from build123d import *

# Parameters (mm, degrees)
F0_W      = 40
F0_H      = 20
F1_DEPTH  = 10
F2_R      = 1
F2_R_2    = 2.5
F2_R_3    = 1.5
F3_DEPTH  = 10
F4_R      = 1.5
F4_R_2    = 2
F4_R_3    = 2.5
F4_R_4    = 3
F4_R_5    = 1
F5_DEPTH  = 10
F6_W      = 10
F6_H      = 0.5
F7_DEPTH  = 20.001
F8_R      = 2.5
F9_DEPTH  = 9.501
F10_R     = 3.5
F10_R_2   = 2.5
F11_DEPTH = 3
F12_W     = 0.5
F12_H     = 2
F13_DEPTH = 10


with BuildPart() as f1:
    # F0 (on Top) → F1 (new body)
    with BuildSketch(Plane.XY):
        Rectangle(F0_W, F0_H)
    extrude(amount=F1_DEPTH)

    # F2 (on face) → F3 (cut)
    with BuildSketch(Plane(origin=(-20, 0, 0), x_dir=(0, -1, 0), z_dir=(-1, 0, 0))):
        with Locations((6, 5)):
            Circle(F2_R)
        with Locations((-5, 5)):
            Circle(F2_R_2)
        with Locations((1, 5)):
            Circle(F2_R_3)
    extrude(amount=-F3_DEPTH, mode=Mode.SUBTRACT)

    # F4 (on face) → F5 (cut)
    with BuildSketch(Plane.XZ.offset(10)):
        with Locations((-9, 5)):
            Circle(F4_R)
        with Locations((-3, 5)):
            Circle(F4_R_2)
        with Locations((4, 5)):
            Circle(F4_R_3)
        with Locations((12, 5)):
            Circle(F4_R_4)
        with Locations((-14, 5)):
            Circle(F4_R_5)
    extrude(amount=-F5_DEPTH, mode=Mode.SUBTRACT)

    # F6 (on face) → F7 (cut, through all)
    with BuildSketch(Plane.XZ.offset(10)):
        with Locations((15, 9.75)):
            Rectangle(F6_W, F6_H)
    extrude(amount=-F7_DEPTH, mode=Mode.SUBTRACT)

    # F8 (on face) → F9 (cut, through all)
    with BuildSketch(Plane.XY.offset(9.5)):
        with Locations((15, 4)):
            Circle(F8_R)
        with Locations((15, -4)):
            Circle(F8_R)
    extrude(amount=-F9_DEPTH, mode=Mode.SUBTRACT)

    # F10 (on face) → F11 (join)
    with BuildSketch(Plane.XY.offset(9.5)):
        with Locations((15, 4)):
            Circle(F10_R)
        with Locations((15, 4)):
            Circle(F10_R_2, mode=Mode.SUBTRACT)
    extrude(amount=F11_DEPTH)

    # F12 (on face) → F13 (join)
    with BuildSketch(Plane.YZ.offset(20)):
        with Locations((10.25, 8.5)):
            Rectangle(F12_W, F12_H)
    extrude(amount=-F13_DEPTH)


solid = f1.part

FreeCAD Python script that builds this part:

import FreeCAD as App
import Part
import Sketcher
Q = App.Units.Quantity


def add_polygon(sketch, points):
    """Adds a closed chain of lines whose ends are joined by coincident constraints."""
    first, n = sketch.GeometryCount, len(points)
    for a, b in zip(points, points[1:] + points[:1]):
        sketch.addGeometry(Part.LineSegment(App.Vector(*a, 0), App.Vector(*b, 0)), False)
    for i in range(n):
        sketch.addConstraint(Sketcher.Constraint("Coincident", first + i, 2, first + (i + 1) % n, 1))

doc = App.newDocument("Part")
body = doc.addObject("PartDesign::Body", "Body")

sketch1 = doc.addObject("Sketcher::SketchObject", "Sketch")
body.addObject(sketch1)
sketch1.AttachmentSupport = (doc.XY_Plane, [""])
sketch1.MapMode = "FlatFace"
add_polygon(sketch1, [(-20, 10), (-20, -10), (20, -10), (20, 10)])
sketch1.addConstraint([
    Sketcher.Constraint("Vertical", 0),
    Sketcher.Constraint("Horizontal", 1),
    Sketcher.Constraint("Vertical", 2),
    Sketcher.Constraint("Horizontal", 3),
    Sketcher.Constraint("Symmetric", 0, 2, 2, 2, -1, 1),
    Sketcher.Constraint("DistanceX", 1, 1, 1, 2, Q("40 mm")),
    Sketcher.Constraint("DistanceY", 0, 2, 0, 1, Q("20 mm")),
])
pad1 = doc.addObject("PartDesign::Pad", "Pad")
body.addObject(pad1)
pad1.Profile = sketch1
pad1.Length = 10

sketch2 = doc.addObject("Sketcher::SketchObject", "Sketch001")
body.addObject(sketch2)
sketch2.AttachmentSupport = (doc.YZ_Plane, [""])
sketch2.MapMode = "FlatFace"
sketch2.AttachmentOffset = App.Placement(App.Vector(0, 0, -20), App.Rotation())
sketch2.addGeometry([
    Part.Circle(App.Vector(-6, 5, 0), App.Vector(0, 0, 1), 1),
    Part.Circle(App.Vector(5, 5, 0), App.Vector(0, 0, 1), 2.5),
    Part.Circle(App.Vector(-1, 5, 0), App.Vector(0, 0, 1), 1.5),
], False)
sketch2.addConstraint([
    Sketcher.Constraint("Horizontal", 0, 3, 1, 3),
    Sketcher.Constraint("Horizontal", 1, 3, 2, 3),
    Sketcher.Constraint("Diameter", 0, Q("2 mm")),
    Sketcher.Constraint("Diameter", 1, Q("5 mm")),
    Sketcher.Constraint("Diameter", 2, Q("3 mm")),
    Sketcher.Constraint("DistanceX", 0, 3, -1, 1, Q("6 mm")),
    Sketcher.Constraint("DistanceY", -1, 1, 0, 3, Q("5 mm")),
    Sketcher.Constraint("DistanceX", -1, 1, 1, 3, Q("5 mm")),
    Sketcher.Constraint("DistanceX", 2, 3, -1, 1, Q("1 mm")),
])
pocket1 = doc.addObject("PartDesign::Pocket", "Pocket")
body.addObject(pocket1)
pocket1.Profile = sketch2
pocket1.Length = 10
pocket1.Reversed = True

sketch3 = doc.addObject("Sketcher::SketchObject", "Sketch002")
body.addObject(sketch3)
sketch3.AttachmentSupport = (doc.XZ_Plane, [""])
sketch3.MapMode = "FlatFace"
sketch3.AttachmentOffset = App.Placement(App.Vector(0, 0, 10), App.Rotation())
sketch3.addGeometry([
    Part.Circle(App.Vector(-9, 5, 0), App.Vector(0, 0, 1), 1.5),
    Part.Circle(App.Vector(-3, 5, 0), App.Vector(0, 0, 1), 2),
    Part.Circle(App.Vector(4, 5, 0), App.Vector(0, 0, 1), 2.5),
    Part.Circle(App.Vector(12, 5, 0), App.Vector(0, 0, 1), 3),
    Part.Circle(App.Vector(-14, 5, 0), App.Vector(0, 0, 1), 1),
], False)
sketch3.addConstraint([
    Sketcher.Constraint("Horizontal", 0, 3, 1, 3),
    Sketcher.Constraint("Horizontal", 1, 3, 2, 3),
    Sketcher.Constraint("Horizontal", 2, 3, 3, 3),
    Sketcher.Constraint("Horizontal", 3, 3, 4, 3),
    Sketcher.Constraint("Diameter", 0, Q("3 mm")),
    Sketcher.Constraint("Diameter", 1, Q("4 mm")),
    Sketcher.Constraint("Diameter", 2, Q("5 mm")),
    Sketcher.Constraint("Diameter", 3, Q("6 mm")),
    Sketcher.Constraint("Diameter", 4, Q("2 mm")),
    Sketcher.Constraint("DistanceX", 0, 3, -1, 1, Q("9 mm")),
    Sketcher.Constraint("DistanceY", -1, 1, 0, 3, Q("5 mm")),
    Sketcher.Constraint("DistanceX", 1, 3, -1, 1, Q("3 mm")),
    Sketcher.Constraint("DistanceX", -1, 1, 2, 3, Q("4 mm")),
    Sketcher.Constraint("DistanceX", -1, 1, 3, 3, Q("12 mm")),
    Sketcher.Constraint("DistanceX", 4, 3, -1, 1, Q("14 mm")),
])
pocket2 = doc.addObject("PartDesign::Pocket", "Pocket001")
body.addObject(pocket2)
pocket2.Profile = sketch3
pocket2.Length = 10

sketch4 = doc.addObject("Sketcher::SketchObject", "Sketch003")
body.addObject(sketch4)
sketch4.AttachmentSupport = (doc.XZ_Plane, [""])
sketch4.MapMode = "FlatFace"
sketch4.AttachmentOffset = App.Placement(App.Vector(0, 0, 10), App.Rotation())
add_polygon(sketch4, [(10, 10), (10, 9.5), (20, 9.5), (20, 10)])
sketch4.addConstraint([
    Sketcher.Constraint("Vertical", 0),
    Sketcher.Constraint("Horizontal", 1),
    Sketcher.Constraint("Vertical", 2),
    Sketcher.Constraint("Horizontal", 3),
    Sketcher.Constraint("DistanceX", 1, 1, 1, 2, Q("10 mm")),
    Sketcher.Constraint("DistanceY", 0, 2, 0, 1, Q("0.5 mm")),
    Sketcher.Constraint("DistanceX", -1, 1, 0, 2, Q("10 mm")),
    Sketcher.Constraint("DistanceY", -1, 1, 2, 2, Q("10 mm")),
])
pocket3 = doc.addObject("PartDesign::Pocket", "Pocket002")
body.addObject(pocket3)
pocket3.Profile = sketch4
pocket3.Type = "ThroughAll"

sketch5 = doc.addObject("Sketcher::SketchObject", "Sketch004")
body.addObject(sketch5)
sketch5.AttachmentSupport = (doc.XY_Plane, [""])
sketch5.MapMode = "FlatFace"
sketch5.AttachmentOffset = App.Placement(App.Vector(0, 0, 9.5), App.Rotation())
sketch5.addGeometry([
    Part.Circle(App.Vector(15, 4, 0), App.Vector(0, 0, 1), 2.5),
    Part.Circle(App.Vector(15, -4, 0), App.Vector(0, 0, 1), 2.5),
], False)
sketch5.addConstraint([
    Sketcher.Constraint("Equal", 0, 1),
    Sketcher.Constraint("Symmetric", 0, 3, 1, 3, -1),
    Sketcher.Constraint("Diameter", 0, Q("5 mm")),
    Sketcher.Constraint("DistanceX", -1, 1, 0, 3, Q("15 mm")),
    Sketcher.Constraint("DistanceY", -1, 1, 0, 3, Q("4 mm")),
])
pocket4 = doc.addObject("PartDesign::Pocket", "Pocket003")
body.addObject(pocket4)
pocket4.Profile = sketch5
pocket4.Type = "ThroughAll"

sketch6 = doc.addObject("Sketcher::SketchObject", "Sketch005")
body.addObject(sketch6)
sketch6.AttachmentSupport = (doc.XY_Plane, [""])
sketch6.MapMode = "FlatFace"
sketch6.AttachmentOffset = App.Placement(App.Vector(0, 0, 9.5), App.Rotation())
sketch6.addGeometry([
    Part.Circle(App.Vector(15, 4, 0), App.Vector(0, 0, 1), 3.5),
    Part.Circle(App.Vector(15, 4, 0), App.Vector(0, 0, 1), 2.5),
], False)
sketch6.addConstraint([
    Sketcher.Constraint("Coincident", 1, 3, 0, 3),
    Sketcher.Constraint("Diameter", 0, Q("7 mm")),
    Sketcher.Constraint("Diameter", 1, Q("5 mm")),
    Sketcher.Constraint("DistanceX", -1, 1, 0, 3, Q("15 mm")),
    Sketcher.Constraint("DistanceY", -1, 1, 0, 3, Q("4 mm")),
])
pad2 = doc.addObject("PartDesign::Pad", "Pad001")
body.addObject(pad2)
pad2.Profile = sketch6
pad2.Length = 3

sketch7 = doc.addObject("Sketcher::SketchObject", "Sketch006")
body.addObject(sketch7)
sketch7.AttachmentSupport = (doc.YZ_Plane, [""])
sketch7.MapMode = "FlatFace"
sketch7.AttachmentOffset = App.Placement(App.Vector(0, 0, 20), App.Rotation())
add_polygon(sketch7, [(10, 9.5), (10, 7.5), (10.5, 7.5), (10.5, 9.5)])
sketch7.addConstraint([
    Sketcher.Constraint("Vertical", 0),
    Sketcher.Constraint("Horizontal", 1),
    Sketcher.Constraint("Vertical", 2),
    Sketcher.Constraint("Horizontal", 3),
    Sketcher.Constraint("DistanceY", 0, 2, 0, 1, Q("2 mm")),
    Sketcher.Constraint("DistanceX", 1, 1, 1, 2, Q("0.5 mm")),
    Sketcher.Constraint("DistanceX", -1, 1, 0, 2, Q("10 mm")),
    Sketcher.Constraint("DistanceY", -1, 1, 0, 2, Q("7.5 mm")),
])
pad3 = doc.addObject("PartDesign::Pad", "Pad002")
body.addObject(pad3)
pad3.Profile = sketch7
pad3.Length = 10
pad3.Reversed = True

doc.recompute()
